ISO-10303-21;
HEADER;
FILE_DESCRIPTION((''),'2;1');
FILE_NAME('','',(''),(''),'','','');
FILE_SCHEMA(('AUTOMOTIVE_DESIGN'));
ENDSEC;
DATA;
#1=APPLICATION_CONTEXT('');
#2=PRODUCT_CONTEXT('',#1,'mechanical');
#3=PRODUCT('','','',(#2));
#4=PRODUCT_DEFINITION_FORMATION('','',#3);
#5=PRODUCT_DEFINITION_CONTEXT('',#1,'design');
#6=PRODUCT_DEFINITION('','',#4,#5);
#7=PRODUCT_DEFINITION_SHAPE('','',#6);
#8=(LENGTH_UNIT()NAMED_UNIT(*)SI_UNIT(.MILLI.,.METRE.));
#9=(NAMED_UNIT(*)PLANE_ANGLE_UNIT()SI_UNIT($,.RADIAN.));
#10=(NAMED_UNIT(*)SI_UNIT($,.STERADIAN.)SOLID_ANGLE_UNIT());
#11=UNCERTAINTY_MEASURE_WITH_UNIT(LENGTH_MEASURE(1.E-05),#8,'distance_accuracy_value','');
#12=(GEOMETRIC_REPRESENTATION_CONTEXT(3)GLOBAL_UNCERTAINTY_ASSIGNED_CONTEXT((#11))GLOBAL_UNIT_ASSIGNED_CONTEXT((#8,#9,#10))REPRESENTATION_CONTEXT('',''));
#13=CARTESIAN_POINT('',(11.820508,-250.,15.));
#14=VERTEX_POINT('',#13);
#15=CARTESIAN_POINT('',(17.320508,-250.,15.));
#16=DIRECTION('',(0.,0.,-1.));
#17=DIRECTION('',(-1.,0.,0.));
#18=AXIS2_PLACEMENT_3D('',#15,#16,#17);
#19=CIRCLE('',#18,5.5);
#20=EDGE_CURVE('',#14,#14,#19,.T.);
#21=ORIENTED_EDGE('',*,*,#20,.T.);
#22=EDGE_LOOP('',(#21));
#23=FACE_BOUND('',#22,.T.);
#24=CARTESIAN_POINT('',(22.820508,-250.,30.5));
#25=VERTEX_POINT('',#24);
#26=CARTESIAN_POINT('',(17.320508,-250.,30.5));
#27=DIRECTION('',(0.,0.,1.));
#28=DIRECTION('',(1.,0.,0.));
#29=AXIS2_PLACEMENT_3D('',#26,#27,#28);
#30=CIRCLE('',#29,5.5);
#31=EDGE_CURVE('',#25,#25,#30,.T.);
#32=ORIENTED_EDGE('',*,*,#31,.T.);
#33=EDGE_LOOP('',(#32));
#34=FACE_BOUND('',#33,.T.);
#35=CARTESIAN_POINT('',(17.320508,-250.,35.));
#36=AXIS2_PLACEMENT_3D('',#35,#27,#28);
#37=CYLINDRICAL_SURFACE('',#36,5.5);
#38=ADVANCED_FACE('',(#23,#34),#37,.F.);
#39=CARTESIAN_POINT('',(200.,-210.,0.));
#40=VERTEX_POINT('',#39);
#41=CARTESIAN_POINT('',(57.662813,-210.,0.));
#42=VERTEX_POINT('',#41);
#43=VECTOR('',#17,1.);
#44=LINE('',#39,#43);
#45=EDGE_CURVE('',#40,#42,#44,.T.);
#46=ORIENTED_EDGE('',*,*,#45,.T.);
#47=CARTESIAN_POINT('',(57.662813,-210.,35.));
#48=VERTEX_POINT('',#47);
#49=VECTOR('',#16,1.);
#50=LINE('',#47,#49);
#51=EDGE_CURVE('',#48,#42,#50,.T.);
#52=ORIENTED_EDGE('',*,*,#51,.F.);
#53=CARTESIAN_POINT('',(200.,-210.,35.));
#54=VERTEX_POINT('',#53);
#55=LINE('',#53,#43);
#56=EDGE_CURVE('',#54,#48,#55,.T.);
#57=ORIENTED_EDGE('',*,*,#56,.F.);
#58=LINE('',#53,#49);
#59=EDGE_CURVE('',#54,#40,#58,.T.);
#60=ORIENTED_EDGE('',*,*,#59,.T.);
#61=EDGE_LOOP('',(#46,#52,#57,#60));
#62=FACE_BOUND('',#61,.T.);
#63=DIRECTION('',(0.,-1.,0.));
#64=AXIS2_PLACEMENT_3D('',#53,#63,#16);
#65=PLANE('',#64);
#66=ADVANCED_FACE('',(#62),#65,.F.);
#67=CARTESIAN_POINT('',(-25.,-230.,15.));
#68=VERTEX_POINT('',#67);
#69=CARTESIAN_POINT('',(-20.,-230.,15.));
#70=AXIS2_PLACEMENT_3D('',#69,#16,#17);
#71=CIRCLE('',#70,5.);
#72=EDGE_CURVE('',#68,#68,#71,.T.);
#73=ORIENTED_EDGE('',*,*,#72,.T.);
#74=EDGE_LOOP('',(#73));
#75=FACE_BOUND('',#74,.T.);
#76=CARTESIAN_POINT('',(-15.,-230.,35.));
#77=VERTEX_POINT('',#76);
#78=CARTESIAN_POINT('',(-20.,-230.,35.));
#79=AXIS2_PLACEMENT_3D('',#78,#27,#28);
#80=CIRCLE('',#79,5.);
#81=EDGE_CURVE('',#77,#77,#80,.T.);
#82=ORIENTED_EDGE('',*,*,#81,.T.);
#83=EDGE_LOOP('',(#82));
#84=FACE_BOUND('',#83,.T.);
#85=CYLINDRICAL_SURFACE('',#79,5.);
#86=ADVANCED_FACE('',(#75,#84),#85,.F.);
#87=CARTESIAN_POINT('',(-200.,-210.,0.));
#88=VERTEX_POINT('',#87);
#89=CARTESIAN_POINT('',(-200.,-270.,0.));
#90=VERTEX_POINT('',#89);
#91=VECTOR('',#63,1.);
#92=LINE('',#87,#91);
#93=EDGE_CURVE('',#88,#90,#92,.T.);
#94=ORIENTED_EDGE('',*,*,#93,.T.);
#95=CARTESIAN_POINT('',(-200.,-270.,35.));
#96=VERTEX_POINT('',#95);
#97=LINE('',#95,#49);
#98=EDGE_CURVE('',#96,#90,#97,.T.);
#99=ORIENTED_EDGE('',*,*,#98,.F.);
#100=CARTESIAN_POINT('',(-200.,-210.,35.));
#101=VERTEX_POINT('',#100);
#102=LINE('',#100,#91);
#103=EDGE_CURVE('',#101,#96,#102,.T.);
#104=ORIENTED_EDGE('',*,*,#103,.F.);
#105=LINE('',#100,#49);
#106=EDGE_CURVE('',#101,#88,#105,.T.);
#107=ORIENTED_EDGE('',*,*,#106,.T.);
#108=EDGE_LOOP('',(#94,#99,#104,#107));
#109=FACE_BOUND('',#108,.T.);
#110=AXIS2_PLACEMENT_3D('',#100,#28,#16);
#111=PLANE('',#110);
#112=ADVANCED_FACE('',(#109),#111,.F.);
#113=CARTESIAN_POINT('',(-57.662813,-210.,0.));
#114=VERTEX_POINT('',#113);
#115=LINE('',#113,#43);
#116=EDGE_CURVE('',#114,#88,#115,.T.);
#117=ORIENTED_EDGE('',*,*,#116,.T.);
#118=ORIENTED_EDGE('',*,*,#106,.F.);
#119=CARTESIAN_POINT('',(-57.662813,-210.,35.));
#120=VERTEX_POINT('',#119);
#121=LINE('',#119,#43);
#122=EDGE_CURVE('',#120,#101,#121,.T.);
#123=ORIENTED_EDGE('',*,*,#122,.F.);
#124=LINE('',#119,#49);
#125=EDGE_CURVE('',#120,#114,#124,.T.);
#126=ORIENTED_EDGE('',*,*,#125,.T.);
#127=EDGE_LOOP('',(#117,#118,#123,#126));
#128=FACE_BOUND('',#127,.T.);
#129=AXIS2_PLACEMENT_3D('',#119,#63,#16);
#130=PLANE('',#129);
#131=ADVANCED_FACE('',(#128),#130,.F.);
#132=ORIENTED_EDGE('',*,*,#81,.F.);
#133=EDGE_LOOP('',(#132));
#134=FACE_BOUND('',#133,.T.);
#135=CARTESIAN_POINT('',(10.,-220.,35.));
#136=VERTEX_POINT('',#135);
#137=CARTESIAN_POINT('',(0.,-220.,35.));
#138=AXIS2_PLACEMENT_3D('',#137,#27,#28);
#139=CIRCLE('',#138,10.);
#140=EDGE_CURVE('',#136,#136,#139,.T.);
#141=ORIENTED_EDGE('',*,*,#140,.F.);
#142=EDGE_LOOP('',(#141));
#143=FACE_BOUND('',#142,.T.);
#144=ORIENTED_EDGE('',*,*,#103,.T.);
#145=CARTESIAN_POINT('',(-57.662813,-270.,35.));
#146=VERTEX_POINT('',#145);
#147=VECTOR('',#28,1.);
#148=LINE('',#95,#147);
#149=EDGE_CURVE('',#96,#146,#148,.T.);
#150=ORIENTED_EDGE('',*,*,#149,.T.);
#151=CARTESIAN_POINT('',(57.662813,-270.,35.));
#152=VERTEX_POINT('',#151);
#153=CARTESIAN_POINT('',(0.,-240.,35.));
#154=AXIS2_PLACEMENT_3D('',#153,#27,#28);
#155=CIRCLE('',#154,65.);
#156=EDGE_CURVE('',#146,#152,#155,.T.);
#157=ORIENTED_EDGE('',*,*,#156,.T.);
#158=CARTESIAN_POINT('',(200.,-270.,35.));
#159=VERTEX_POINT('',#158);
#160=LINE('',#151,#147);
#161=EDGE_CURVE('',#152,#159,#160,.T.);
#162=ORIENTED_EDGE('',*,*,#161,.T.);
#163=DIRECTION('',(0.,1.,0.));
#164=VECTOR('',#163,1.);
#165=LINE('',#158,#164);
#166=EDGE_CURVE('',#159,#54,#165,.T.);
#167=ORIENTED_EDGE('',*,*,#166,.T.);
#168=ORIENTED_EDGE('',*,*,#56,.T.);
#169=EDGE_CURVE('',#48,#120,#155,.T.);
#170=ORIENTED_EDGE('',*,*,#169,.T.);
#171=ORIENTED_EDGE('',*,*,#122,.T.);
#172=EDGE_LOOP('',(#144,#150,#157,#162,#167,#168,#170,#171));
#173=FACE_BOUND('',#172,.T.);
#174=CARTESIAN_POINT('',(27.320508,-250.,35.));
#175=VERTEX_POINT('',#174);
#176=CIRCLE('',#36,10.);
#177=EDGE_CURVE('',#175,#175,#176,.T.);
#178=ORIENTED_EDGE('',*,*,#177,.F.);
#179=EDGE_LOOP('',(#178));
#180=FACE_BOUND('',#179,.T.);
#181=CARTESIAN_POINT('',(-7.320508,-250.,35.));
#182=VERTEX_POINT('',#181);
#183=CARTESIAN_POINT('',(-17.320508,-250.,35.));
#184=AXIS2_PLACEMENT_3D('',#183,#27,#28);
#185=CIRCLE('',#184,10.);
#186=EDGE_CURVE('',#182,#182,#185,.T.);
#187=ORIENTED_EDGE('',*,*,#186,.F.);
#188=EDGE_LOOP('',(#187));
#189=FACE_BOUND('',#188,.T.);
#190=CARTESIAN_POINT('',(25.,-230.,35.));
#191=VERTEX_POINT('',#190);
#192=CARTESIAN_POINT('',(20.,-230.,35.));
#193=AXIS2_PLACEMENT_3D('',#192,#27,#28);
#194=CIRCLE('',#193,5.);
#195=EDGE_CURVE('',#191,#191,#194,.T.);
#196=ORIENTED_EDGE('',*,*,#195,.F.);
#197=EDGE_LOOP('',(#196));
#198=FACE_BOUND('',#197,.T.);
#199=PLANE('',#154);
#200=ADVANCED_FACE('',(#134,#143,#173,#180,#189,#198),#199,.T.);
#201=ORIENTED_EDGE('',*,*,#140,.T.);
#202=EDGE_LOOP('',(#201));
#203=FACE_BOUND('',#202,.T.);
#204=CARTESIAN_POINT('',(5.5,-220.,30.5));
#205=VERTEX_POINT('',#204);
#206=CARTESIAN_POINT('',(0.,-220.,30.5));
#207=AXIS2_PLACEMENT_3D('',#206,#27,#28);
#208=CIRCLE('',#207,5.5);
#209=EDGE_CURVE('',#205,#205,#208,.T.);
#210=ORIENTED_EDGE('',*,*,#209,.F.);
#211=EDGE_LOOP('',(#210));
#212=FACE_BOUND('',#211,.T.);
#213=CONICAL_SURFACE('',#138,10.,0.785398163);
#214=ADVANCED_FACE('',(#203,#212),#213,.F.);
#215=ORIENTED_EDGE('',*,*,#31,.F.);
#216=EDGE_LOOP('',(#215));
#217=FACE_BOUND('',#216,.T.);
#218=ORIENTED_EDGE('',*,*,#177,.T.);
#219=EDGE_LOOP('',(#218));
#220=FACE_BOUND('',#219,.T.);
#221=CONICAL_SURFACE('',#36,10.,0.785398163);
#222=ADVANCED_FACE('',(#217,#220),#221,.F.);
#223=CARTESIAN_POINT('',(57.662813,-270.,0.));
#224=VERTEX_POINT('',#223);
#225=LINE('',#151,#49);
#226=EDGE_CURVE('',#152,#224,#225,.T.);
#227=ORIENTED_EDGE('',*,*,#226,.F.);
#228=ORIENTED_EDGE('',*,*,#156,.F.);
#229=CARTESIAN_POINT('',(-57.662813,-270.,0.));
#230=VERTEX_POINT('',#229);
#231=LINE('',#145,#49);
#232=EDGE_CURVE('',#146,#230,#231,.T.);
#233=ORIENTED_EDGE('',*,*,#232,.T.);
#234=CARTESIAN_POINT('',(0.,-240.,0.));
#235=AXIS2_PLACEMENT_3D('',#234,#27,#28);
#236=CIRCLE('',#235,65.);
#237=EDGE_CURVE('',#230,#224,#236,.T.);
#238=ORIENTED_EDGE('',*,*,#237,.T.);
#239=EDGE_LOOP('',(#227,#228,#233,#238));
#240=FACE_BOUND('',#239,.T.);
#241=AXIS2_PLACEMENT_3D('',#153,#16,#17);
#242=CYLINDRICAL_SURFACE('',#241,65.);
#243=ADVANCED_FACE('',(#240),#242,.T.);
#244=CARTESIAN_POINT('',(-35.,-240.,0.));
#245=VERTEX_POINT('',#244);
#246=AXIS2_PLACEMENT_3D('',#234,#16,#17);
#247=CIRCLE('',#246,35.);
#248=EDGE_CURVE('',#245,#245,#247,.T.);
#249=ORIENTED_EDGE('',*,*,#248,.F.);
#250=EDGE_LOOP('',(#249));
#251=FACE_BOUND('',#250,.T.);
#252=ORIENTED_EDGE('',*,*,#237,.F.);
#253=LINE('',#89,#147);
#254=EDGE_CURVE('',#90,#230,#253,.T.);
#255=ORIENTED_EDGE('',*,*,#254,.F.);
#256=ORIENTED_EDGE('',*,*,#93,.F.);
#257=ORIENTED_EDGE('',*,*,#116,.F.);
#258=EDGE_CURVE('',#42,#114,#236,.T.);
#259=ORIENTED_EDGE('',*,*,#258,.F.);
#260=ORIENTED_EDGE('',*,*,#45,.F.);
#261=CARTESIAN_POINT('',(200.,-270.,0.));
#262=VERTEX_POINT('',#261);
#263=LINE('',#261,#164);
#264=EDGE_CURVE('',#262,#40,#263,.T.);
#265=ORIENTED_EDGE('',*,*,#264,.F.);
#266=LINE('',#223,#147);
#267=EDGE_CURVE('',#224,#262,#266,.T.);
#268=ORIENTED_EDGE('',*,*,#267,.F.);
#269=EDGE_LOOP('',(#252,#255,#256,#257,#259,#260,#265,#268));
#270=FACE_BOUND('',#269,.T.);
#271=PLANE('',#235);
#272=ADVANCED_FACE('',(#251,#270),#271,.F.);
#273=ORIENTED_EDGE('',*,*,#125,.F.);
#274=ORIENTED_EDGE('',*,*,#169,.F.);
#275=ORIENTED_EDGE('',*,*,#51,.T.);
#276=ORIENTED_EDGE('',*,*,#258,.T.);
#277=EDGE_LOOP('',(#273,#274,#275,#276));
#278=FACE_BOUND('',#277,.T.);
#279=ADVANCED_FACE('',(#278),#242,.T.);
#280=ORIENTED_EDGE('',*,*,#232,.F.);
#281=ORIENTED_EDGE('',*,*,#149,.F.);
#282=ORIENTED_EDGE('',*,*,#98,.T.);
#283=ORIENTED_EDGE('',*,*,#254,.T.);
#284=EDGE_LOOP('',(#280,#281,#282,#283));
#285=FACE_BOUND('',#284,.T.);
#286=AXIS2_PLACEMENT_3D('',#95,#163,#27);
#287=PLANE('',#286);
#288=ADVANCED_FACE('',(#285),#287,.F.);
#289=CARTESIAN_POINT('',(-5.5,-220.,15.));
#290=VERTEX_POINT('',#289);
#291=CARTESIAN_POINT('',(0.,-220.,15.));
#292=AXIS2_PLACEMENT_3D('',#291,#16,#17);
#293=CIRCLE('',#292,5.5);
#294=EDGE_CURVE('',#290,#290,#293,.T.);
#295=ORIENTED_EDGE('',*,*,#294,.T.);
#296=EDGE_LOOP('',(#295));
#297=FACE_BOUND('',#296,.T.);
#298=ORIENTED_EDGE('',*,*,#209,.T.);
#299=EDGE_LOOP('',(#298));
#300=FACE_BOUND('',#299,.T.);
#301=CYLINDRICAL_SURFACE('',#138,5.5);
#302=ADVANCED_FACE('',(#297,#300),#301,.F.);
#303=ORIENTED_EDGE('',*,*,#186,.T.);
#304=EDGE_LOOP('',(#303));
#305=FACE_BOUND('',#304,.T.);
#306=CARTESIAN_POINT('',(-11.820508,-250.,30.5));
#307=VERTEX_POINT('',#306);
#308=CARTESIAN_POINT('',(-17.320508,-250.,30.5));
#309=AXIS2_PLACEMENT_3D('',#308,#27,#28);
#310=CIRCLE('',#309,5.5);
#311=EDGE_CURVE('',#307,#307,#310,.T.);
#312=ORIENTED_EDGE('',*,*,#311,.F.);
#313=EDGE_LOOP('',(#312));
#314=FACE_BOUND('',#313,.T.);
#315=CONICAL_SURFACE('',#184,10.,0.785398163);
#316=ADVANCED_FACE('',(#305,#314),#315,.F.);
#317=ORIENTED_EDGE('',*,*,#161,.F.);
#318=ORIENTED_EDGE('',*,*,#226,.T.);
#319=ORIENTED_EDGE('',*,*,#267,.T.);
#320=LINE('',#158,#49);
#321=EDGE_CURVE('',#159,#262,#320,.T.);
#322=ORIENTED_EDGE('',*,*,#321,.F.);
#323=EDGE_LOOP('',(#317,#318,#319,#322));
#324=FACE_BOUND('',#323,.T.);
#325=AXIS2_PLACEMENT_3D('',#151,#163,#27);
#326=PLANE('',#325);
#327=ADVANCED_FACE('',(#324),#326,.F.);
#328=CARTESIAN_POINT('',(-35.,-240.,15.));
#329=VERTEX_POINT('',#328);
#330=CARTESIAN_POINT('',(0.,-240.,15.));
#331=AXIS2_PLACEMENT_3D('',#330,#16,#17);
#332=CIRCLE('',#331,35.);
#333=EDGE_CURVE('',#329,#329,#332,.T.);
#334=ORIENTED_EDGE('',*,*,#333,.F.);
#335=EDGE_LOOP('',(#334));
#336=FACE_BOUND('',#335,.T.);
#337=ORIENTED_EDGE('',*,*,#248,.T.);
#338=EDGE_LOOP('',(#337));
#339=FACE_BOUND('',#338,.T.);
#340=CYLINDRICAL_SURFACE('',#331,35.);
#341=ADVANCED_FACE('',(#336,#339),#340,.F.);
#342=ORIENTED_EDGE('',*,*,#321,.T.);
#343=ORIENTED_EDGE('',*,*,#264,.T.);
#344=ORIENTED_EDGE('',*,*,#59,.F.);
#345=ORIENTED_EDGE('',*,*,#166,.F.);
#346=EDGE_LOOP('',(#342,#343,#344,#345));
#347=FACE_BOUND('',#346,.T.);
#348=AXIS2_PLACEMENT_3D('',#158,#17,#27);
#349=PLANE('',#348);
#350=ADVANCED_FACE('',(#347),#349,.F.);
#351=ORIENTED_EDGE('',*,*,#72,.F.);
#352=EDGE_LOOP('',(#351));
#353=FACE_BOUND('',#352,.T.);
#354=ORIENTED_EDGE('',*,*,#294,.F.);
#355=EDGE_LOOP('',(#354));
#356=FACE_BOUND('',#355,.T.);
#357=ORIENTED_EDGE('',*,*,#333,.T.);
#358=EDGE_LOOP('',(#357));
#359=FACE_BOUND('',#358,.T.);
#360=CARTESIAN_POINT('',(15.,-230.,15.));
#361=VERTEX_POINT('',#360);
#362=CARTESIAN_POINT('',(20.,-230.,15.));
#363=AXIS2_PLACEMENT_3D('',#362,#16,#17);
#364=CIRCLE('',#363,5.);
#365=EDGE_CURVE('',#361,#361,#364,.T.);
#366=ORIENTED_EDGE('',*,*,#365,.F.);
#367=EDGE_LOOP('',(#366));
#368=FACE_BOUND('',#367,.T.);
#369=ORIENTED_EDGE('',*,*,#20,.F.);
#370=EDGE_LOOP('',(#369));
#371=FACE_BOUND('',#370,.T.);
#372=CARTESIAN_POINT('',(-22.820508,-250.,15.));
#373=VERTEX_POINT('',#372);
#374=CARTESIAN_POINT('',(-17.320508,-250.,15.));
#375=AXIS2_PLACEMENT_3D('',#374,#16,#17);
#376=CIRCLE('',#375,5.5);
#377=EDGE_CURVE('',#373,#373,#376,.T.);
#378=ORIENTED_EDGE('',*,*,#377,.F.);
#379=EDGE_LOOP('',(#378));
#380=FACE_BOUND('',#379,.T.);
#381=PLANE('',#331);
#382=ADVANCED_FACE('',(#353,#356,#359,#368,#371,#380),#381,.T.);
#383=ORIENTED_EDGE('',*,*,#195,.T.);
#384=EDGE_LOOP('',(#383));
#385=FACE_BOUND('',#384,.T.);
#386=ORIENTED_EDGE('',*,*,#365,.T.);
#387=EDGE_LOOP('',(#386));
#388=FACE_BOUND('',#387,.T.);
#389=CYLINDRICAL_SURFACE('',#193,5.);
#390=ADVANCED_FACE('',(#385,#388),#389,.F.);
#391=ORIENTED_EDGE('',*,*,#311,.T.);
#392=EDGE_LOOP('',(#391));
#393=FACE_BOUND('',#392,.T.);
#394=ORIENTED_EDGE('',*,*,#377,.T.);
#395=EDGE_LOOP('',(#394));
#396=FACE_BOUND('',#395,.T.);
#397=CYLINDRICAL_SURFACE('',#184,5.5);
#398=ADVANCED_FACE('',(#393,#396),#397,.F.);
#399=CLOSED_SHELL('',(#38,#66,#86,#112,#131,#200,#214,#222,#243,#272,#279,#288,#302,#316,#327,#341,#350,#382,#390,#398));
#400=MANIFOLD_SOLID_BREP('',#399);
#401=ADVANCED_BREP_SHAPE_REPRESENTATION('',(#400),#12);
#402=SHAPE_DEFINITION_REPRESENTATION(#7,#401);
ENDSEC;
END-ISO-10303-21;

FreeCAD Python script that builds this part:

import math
import FreeCAD as App
import Part
import Sketcher

V = App.Vector

doc = App.newDocument("Part")
body = doc.addObject("PartDesign::Body", "Body")

sketch1 = body.newObject("Sketcher::SketchObject", "Sketch")
sketch1.AttachmentSupport = (doc.getObject("XY_Plane"), [""])
sketch1.MapMode = "FlatFace"
sketch1.addGeometry(Part.LineSegment(V(-200, -270, 0), V(-57.662813, -270, 0)), False)
sketch1.addGeometry(Part.ArcOfCircle(Part.Circle(V(0, -240, 0), V(0, 0, 1), 65), math.radians(-152.513574), math.radians(-27.486426)), False)
sketch1.addGeometry(Part.LineSegment(V(57.662813, -270, 0), V(200, -270, 0)), False)
sketch1.addGeometry(Part.LineSegment(V(200, -270, 0), V(200, -210, 0)), False)
sketch1.addGeometry(Part.LineSegment(V(200, -210, 0), V(57.662813, -210, 0)), False)
sketch1.addGeometry(Part.ArcOfCircle(Part.Circle(V(0, -240, 0), V(0, 0, 1), 65), math.radians(27.486426), math.radians(152.513574)), False)
sketch1.addGeometry(Part.LineSegment(V(-57.662813, -210, 0), V(-200, -210, 0)), False)
sketch1.addGeometry(Part.LineSegment(V(-200, -210, 0), V(-200, -270, 0)), False)
sketch1.addConstraint(Sketcher.Constraint("Coincident", 0, 2, 1, 1))
sketch1.addConstraint(Sketcher.Constraint("Coincident", 1, 2, 2, 1))
sketch1.addConstraint(Sketcher.Constraint("Coincident", 2, 2, 3, 1))
sketch1.addConstraint(Sketcher.Constraint("Coincident", 3, 2, 4, 1))
sketch1.addConstraint(Sketcher.Constraint("Coincident", 4, 2, 5, 1))
sketch1.addConstraint(Sketcher.Constraint("Coincident", 5, 2, 6, 1))
sketch1.addConstraint(Sketcher.Constraint("Coincident", 6, 2, 7, 1))
sketch1.addConstraint(Sketcher.Constraint("Coincident", 7, 2, 0, 1))
sketch1.addConstraint(Sketcher.Constraint("Horizontal", 0))
sketch1.addConstraint(Sketcher.Constraint("Horizontal", 2))
sketch1.addConstraint(Sketcher.Constraint("Vertical", 3))
sketch1.addConstraint(Sketcher.Constraint("Horizontal", 4))
sketch1.addConstraint(Sketcher.Constraint("Horizontal", 6))
sketch1.addConstraint(Sketcher.Constraint("Vertical", 7))
sketch1.addConstraint(Sketcher.Constraint("Coincident", 5, 3, 1, 3))
sketch1.addConstraint(Sketcher.Constraint("Equal", 1, 5))
sketch1.addConstraint(Sketcher.Constraint("Symmetric", 0, 2, 1, 2, -2))
sketch1.addConstraint(Sketcher.Constraint("Symmetric", 3, 2, 6, 2, -2))
sketch1.addConstraint(Sketcher.Constraint("Vertical", 1, 2, 4, 2))
sketch1.addConstraint(Sketcher.Constraint("Radius", 1, 65.0))
sketch1.addConstraint(Sketcher.Constraint("DistanceY", 3, 1, 3, 2, 60.0))
sketch1.addConstraint(Sketcher.Constraint("DistanceY", 1, 3, -1, 1, 240.0))
sketch1.addConstraint(Sketcher.Constraint("DistanceX", -1, 1, 2, 2, 200.0))
pad1 = body.newObject("PartDesign::Pad", "Pad")
pad1.Profile = sketch1
pad1.Length = 35

sketch2 = body.newObject("Sketcher::SketchObject", "Sketch001")
sketch2.AttachmentSupport = (doc.getObject("XY_Plane"), [""])
sketch2.MapMode = "FlatFace"
sketch2.addGeometry(Part.Circle(V(0, -240, 0), V(0, 0, 1), 35), False)
sketch2.addConstraint(Sketcher.Constraint("PointOnObject", 0, 3, -2))
sketch2.addConstraint(Sketcher.Constraint("Diameter", 0, 70.0))
sketch2.addConstraint(Sketcher.Constraint("DistanceY", 0, 3, -1, 1, 240.0))
pocket1 = body.newObject("PartDesign::Pocket", "Pocket")
pocket1.Profile = sketch2
pocket1.Length = 15
pocket1.Reversed = True

sketch3 = body.newObject("Sketcher::SketchObject", "Sketch002")
sketch3.AttachmentSupport = (doc.getObject("XY_Plane"), [""])
sketch3.MapMode = "FlatFace"
sketch3.AttachmentOffset = App.Placement(V(0, 0, 35), App.Rotation())
sketch3.addGeometry(Part.Circle(V(0, -220, 0), V(0, 0, 1), 5.5), False)
sketch3.addGeometry(Part.Circle(V(-17.320508, -250, 0), V(0, 0, 1), 5.5), False)
sketch3.addGeometry(Part.Circle(V(17.320508, -250, 0), V(0, 0, 1), 5.5), False)
sketch3.addConstraint(Sketcher.Constraint("Equal", 0, 1))
sketch3.addConstraint(Sketcher.Constraint("Equal", 1, 2))
sketch3.addConstraint(Sketcher.Constraint("Symmetric", 1, 3, 2, 3, -2))
sketch3.addConstraint(Sketcher.Constraint("PointOnObject", 0, 3, -2))
sketch3.addConstraint(Sketcher.Constraint("Diameter", 0, 11.0))
sketch3.addConstraint(Sketcher.Constraint("DistanceY", 0, 3, -1, 1, 220.0))
sketch3.addConstraint(Sketcher.Constraint("DistanceY", 1, 3, -1, 1, 250.0))
sketch3.addConstraint(Sketcher.Constraint("DistanceX", 1, 3, -1, 1, 17.320508))
doc.recompute()
hole = body.newObject("PartDesign::Hole", "Hole")
hole.Profile = sketch3
hole.ThreadType = "None"
hole.Diameter = 11
hole.DepthType = "ThroughAll"
hole.HoleCutType = "Countersink"
hole.HoleCutDiameter = 20
hole.HoleCutCountersinkAngle = 90

sketch4 = body.newObject("Sketcher::SketchObject", "Sketch003")
sketch4.AttachmentSupport = (doc.getObject("XY_Plane"), [""])
sketch4.MapMode = "FlatFace"
sketch4.AttachmentOffset = App.Placement(V(0, 0, 35), App.Rotation())
sketch4.addGeometry(Part.Circle(V(-20, -230, 0), V(0, 0, 1), 5), False)
sketch4.addGeometry(Part.Circle(V(20, -230, 0), V(0, 0, 1), 5), False)
sketch4.addConstraint(Sketcher.Constraint("Equal", 0, 1))
sketch4.addConstraint(Sketcher.Constraint("Symmetric", 0, 3, 1, 3, -2))
sketch4.addConstraint(Sketcher.Constraint("Diameter", 0, 10.0))
sketch4.addConstraint(Sketcher.Constraint("DistanceX", 0, 3, -1, 1, 20.0))
sketch4.addConstraint(Sketcher.Constraint("DistanceY", 0, 3, -1, 1, 230.0))
doc.recompute()
hole2 = body.newObject("PartDesign::Hole", "Hole001")
hole2.Profile = sketch4
hole2.ThreadType = "None"
hole2.Diameter = 10
hole2.DepthType = "ThroughAll"

sketch5 = body.newObject("Sketcher::SketchObject", "Sketch004")
sketch5.AttachmentSupport = (doc.getObject("XY_Plane"), [""])
sketch5.MapMode = "FlatFace"
sketch5.addGeometry(Part.Circle(V(0, -240, 0), V(0, 0, 1), 35), False)
sketch5.addConstraint(Sketcher.Constraint("PointOnObject", 0, 3, -2))
sketch5.addConstraint(Sketcher.Constraint("Diameter", 0, 70.0))
sketch5.addConstraint(Sketcher.Constraint("DistanceY", 0, 3, -1, 1, 240.0))
pocket2 = body.newObject("PartDesign::Pocket", "Pocket001")
pocket2.Profile = sketch5
pocket2.Length = 15
pocket2.Reversed = True

doc.recompute()
